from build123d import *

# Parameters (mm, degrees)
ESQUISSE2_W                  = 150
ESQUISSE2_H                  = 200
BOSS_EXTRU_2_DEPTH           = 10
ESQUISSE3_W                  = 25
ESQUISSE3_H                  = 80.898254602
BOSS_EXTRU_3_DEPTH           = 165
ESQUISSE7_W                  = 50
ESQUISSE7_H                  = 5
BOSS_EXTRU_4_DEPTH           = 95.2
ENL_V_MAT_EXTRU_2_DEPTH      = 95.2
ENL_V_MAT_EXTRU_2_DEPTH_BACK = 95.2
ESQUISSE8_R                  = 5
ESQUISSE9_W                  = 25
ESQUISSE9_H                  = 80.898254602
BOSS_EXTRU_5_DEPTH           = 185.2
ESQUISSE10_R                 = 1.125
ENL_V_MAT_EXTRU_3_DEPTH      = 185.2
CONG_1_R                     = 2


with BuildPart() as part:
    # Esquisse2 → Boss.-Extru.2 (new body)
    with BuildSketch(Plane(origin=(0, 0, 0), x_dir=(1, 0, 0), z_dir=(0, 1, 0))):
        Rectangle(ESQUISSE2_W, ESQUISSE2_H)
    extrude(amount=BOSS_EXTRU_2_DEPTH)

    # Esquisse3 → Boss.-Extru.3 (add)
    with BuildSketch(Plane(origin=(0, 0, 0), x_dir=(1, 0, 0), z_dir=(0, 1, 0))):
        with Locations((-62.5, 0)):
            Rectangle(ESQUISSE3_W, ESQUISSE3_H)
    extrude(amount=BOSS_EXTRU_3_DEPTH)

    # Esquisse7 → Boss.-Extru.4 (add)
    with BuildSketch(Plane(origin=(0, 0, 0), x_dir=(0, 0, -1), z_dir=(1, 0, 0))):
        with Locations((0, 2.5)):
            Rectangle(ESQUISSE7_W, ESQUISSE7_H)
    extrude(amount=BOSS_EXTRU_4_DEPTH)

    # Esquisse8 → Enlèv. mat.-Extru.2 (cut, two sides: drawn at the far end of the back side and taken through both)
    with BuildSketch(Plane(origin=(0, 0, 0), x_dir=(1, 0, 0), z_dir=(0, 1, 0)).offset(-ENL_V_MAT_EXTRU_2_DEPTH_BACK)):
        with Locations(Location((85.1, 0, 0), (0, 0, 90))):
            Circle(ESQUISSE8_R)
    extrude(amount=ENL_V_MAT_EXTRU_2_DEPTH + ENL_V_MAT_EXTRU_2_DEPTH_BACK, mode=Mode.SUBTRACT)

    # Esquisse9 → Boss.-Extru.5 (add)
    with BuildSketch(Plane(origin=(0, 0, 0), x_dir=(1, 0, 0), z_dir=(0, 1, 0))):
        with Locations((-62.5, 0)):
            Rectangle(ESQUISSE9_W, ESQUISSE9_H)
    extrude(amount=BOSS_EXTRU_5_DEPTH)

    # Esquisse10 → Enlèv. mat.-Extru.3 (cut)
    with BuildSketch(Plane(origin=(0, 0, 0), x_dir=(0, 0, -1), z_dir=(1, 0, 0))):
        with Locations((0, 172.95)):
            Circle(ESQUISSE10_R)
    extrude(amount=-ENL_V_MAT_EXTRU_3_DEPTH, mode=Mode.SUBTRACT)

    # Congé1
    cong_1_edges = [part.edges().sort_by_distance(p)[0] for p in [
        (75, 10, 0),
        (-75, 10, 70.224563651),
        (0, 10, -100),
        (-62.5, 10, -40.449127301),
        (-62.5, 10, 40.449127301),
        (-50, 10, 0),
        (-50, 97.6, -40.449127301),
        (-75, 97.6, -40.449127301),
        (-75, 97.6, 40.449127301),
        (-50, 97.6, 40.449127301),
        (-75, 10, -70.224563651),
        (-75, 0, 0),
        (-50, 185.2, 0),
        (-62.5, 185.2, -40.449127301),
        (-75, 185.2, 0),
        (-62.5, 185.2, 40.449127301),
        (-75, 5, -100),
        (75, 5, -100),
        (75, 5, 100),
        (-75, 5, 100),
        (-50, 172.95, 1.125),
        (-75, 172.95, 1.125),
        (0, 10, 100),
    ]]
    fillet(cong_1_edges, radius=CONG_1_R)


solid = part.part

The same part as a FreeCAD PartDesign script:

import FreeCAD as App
import Part
import Sketcher


def edges_at(feature, points):
    """Names of the edges that pass closest to the given points."""
    edges = feature.Shape.Edges
    near = lambda p: min(range(len(edges)), key=lambda i: edges[i].distToShape(Part.Vertex(*p))[0])
    return sorted({f"Edge{near(p) + 1}" for p in points})


def add_polygon(sketch, points):
    """Adds a closed chain of lines whose ends are joined by coincident constraints."""
    first, n = sketch.GeometryCount, len(points)
    for a, b in zip(points, points[1:] + points[:1]):
        sketch.addGeometry(Part.LineSegment(App.Vector(*a, 0), App.Vector(*b, 0)), False)
    for i in range(n):
        sketch.addConstraint(Sketcher.Constraint("Coincident", first + i, 2, first + (i + 1) % n, 1))

doc = App.newDocument("Part")
body = doc.addObject("PartDesign::Body", "Body")

sketch1 = body.newObject("Sketcher::SketchObject", "Sketch")
sketch1.AttachmentSupport = (doc.getObject("XZ_Plane"), [""])
sketch1.MapMode = "FlatFace"
add_polygon(sketch1, [(-75, -100), (-75, 100), (75, 100), (75, -100)])
sketch1.addConstraint(Sketcher.Constraint("Vertical", 0))
sketch1.addConstraint(Sketcher.Constraint("Horizontal", 1))
sketch1.addConstraint(Sketcher.Constraint("Vertical", 2))
sketch1.addConstraint(Sketcher.Constraint("Horizontal", 3))
sketch1.addConstraint(Sketcher.Constraint("Symmetric", 0, 2, 2, 2, -1, 1))
sketch1.addConstraint(Sketcher.Constraint("DistanceX", 1, 1, 1, 2, 150.0))
sketch1.addConstraint(Sketcher.Constraint("DistanceY", 0, 1, 0, 2, 200.0))
pad1 = body.newObject("PartDesign::Pad", "Pad")
pad1.Profile = sketch1
pad1.Length = 10
pad1.Reversed = True

sketch2 = body.newObject("Sketcher::SketchObject", "Sketch001")
sketch2.AttachmentSupport = (doc.getObject("XZ_Plane"), [""])
sketch2.MapMode = "FlatFace"
add_polygon(sketch2, [(-75, -40), (-75, 40), (-50, 40), (-50, -40)])
sketch2.addConstraint(Sketcher.Constraint("Vertical", 0))
sketch2.addConstraint(Sketcher.Constraint("Horizontal", 1))
sketch2.addConstraint(Sketcher.Constraint("Vertical", 2))
sketch2.addConstraint(Sketcher.Constraint("Horizontal", 3))
sketch2.addConstraint(Sketcher.Constraint("DistanceX", 1, 1, 1, 2, 25.0))
sketch2.addConstraint(Sketcher.Constraint("DistanceX", 0, 2, -1, 1, 75.0))
sketch2.addConstraint(Sketcher.Constraint("DistanceY", 0, 1, 0, 2, 80.898255))
sketch2.addConstraint(Sketcher.Constraint("DistanceY", -1, 1, 0, 2, 40.449127))
pad2 = body.newObject("PartDesign::Pad", "Pad001")
pad2.Profile = sketch2
pad2.Length = 165
pad2.Reversed = True

sketch3 = body.newObject("Sketcher::SketchObject", "Sketch002")
sketch3.AttachmentSupport = (doc.getObject("YZ_Plane"), [""])
sketch3.MapMode = "FlatFace"
add_polygon(sketch3, [(5, 25), (0, 25), (0, -25), (5, -25)])
sketch3.addConstraint(Sketcher.Constraint("Horizontal", 0))
sketch3.addConstraint(Sketcher.Constraint("Vertical", 1))
sketch3.addConstraint(Sketcher.Constraint("Horizontal", 2))
sketch3.addConstraint(Sketcher.Constraint("Vertical", 3))
sketch3.addConstraint(Sketcher.Constraint("Symmetric", 0, 2, 1, 2, -1, 1))
sketch3.addConstraint(Sketcher.Constraint("DistanceX", 0, 2, 0, 1, 5.0))
sketch3.addConstraint(Sketcher.Constraint("DistanceY", 1, 2, 1, 1, 50.0))
pad3 = body.newObject("PartDesign::Pad", "Pad002")
pad3.Profile = sketch3
pad3.Length = 95.2

sketch4 = body.newObject("Sketcher::SketchObject", "Sketch003")
sketch4.AttachmentSupport = (doc.getObject("XZ_Plane"), [""])
sketch4.MapMode = "FlatFace"
sketch4.addGeometry(Part.Circle(App.Vector(85, 0, 0), App.Vector(0, 0, 1), 5), False)
sketch4.addConstraint(Sketcher.Constraint("PointOnObject", 0, 3, -1))
sketch4.addConstraint(Sketcher.Constraint("Diameter", 0, 10.0))
sketch4.addConstraint(Sketcher.Constraint("DistanceX", -1, 1, 0, 3, 85.1))
pocket1 = body.newObject("PartDesign::Pocket", "Pocket")
pocket1.Profile = sketch4
pocket1.Type = "ThroughAll"
pocket1.Midplane = True

sketch5 = body.newObject("Sketcher::SketchObject", "Sketch004")
sketch5.AttachmentSupport = (doc.getObject("XZ_Plane"), [""])
sketch5.MapMode = "FlatFace"
add_polygon(sketch5, [(-75, -40), (-75, 40), (-50, 40), (-50, -40)])
sketch5.addConstraint(Sketcher.Constraint("Vertical", 0))
sketch5.addConstraint(Sketcher.Constraint("Horizontal", 1))
sketch5.addConstraint(Sketcher.Constraint("Vertical", 2))
sketch5.addConstraint(Sketcher.Constraint("Horizontal", 3))
sketch5.addConstraint(Sketcher.Constraint("DistanceX", 1, 1, 1, 2, 25.0))
sketch5.addConstraint(Sketcher.Constraint("DistanceX", 0, 2, -1, 1, 75.0))
sketch5.addConstraint(Sketcher.Constraint("DistanceY", 0, 1, 0, 2, 80.898255))
sketch5.addConstraint(Sketcher.Constraint("DistanceY", -1, 1, 0, 2, 40.449127))
pad4 = body.newObject("PartDesign::Pad", "Pad003")
pad4.Profile = sketch5
pad4.Length = 185.2
pad4.Reversed = True

sketch6 = body.newObject("Sketcher::SketchObject", "Sketch005")
sketch6.AttachmentSupport = (doc.getObject("YZ_Plane"), [""])
sketch6.MapMode = "FlatFace"
sketch6.addGeometry(Part.Circle(App.Vector(172.9, 0, 0), App.Vector(0, 0, 1), 1.1), False)
sketch6.addConstraint(Sketcher.Constraint("PointOnObject", 0, 3, -1))
sketch6.addConstraint(Sketcher.Constraint("Diameter", 0, 2.25))
sketch6.addConstraint(Sketcher.Constraint("DistanceX", -1, 1, 0, 3, 172.95))
pocket2 = body.newObject("PartDesign::Pocket", "Pocket001")
pocket2.Profile = sketch6
pocket2.Length = 185.2
doc.recompute()

fillet = body.newObject("PartDesign::Fillet", "Fillet")
fillet.Base = (pocket2, edges_at(pocket2, [
    (75, 10, 0),
    (-75, 10, 70.225),
    (0, 10, -100),
    (-62.5, 10, -40.449),
    (-62.5, 10, 40.449),
    (-50, 10, 0),
    (-50, 97.6, -40.449),
    (-75, 97.6, -40.449),
    (-75, 97.6, 40.449),
    (-50, 97.6, 40.449),
    (-75, 10, -70.225),
    (-75, 0, 0),
    (-50, 185.2, 0),
    (-62.5, 185.2, -40.449),
    (-75, 185.2, 0),
    (-62.5, 185.2, 40.449),
    (-75, 5, -100),
    (75, 5, -100),
    (75, 5, 100),
    (-75, 5, 100),
    (-50, 172.95, 1.125),
    (-75, 172.95, 1.125),
    (0, 10, 100),
]))
fillet.Radius = 2

doc.recompute()
